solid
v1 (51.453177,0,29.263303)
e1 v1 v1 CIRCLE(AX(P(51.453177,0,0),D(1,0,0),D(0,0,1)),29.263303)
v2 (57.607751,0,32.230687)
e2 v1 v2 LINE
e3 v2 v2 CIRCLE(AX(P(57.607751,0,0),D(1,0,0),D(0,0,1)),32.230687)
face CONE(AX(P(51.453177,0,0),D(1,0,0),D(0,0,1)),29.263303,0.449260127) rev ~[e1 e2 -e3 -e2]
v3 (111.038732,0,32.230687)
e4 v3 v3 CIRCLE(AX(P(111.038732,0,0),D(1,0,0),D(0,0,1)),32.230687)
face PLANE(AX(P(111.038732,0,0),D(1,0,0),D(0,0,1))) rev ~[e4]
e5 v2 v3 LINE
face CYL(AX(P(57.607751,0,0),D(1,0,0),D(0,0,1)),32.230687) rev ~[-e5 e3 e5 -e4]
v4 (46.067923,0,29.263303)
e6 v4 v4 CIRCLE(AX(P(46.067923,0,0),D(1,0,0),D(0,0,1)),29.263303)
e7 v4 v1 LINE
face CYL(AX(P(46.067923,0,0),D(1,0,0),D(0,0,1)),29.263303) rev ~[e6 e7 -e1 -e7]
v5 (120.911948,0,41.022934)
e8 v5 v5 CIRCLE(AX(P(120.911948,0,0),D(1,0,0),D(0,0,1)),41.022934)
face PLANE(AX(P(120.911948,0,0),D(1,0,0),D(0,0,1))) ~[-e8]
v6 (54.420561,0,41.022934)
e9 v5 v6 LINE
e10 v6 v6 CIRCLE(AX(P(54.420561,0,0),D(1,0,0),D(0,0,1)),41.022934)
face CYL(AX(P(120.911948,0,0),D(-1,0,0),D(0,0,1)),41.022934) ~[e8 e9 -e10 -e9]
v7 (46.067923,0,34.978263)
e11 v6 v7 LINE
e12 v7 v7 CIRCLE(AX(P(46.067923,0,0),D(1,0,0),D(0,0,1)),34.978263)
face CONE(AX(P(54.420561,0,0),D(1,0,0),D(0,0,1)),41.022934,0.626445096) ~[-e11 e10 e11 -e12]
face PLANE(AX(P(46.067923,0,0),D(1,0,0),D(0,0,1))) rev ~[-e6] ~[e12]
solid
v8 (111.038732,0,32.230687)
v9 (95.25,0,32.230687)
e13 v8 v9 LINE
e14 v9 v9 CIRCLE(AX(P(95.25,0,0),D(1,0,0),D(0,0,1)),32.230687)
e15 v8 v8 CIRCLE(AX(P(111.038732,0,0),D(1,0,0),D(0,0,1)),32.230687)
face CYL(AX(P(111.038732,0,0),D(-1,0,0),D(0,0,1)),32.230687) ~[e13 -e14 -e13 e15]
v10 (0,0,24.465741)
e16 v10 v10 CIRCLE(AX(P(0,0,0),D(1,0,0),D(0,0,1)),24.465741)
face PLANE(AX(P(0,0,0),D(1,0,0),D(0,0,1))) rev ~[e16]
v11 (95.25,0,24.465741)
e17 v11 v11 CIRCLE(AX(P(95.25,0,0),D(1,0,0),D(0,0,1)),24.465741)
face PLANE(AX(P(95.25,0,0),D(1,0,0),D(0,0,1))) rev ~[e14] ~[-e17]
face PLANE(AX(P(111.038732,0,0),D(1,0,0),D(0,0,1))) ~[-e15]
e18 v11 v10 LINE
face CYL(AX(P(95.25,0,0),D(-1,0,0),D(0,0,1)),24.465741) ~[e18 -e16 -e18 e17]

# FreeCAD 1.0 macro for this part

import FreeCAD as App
import Part
import Sketcher

V = App.Vector
Q = App.Units.Quantity

doc = App.newDocument("Part")
body = doc.addObject("PartDesign::Body", "Body")

sketch1 = body.newObject("Sketcher::SketchObject", "Sketch")
sketch1.AttachmentSupport = (doc.getObject("XZ_Plane"), [""])
sketch1.MapMode = "FlatFace"
sketch1.addGeometry(Part.LineSegment(V(0, 24, 0), V(0, 0, 0)), False)
sketch1.addGeometry(Part.LineSegment(V(0, 0, 0), V(111, 0, 0)), False)
sketch1.addGeometry(Part.LineSegment(V(111, 0, 0), V(111, 32, 0)), False)
sketch1.addGeometry(Part.LineSegment(V(111, 32, 0), V(95, 32, 0)), False)
sketch1.addGeometry(Part.LineSegment(V(95, 32, 0), V(95, 24, 0)), False)
sketch1.addGeometry(Part.LineSegment(V(95, 24, 0), V(0, 24, 0)), False)
sketch1.addConstraint(Sketcher.Constraint("Coincident", 0, 2, 1, 1))
sketch1.addConstraint(Sketcher.Constraint("Coincident", 1, 2, 2, 1))
sketch1.addConstraint(Sketcher.Constraint("Coincident", 2, 2, 3, 1))
sketch1.addConstraint(Sketcher.Constraint("Coincident", 3, 2, 4, 1))
sketch1.addConstraint(Sketcher.Constraint("Coincident", 4, 2, 5, 1))
sketch1.addConstraint(Sketcher.Constraint("Coincident", 5, 2, 0, 1))
sketch1.addConstraint(Sketcher.Constraint("Vertical", 0))
sketch1.addConstraint(Sketcher.Constraint("Horizontal", 1))
sketch1.addConstraint(Sketcher.Constraint("Vertical", 2))
sketch1.addConstraint(Sketcher.Constraint("Horizontal", 3))
sketch1.addConstraint(Sketcher.Constraint("Vertical", 4))
sketch1.addConstraint(Sketcher.Constraint("Horizontal", 5))
sketch1.addConstraint(Sketcher.Constraint("Coincident", 0, 2, -1, 1))
sketch1.addConstraint(Sketcher.Constraint("DistanceX", 5, 2, 5, 1, Q("3.75 in")))
sketch1.addConstraint(Sketcher.Constraint("DistanceX", 1, 1, 1, 2, Q("111.038732 mm")))
sketch1.addConstraint(Sketcher.Constraint("DistanceY", 0, 2, 0, 1, Q("24.465741 mm")))
sketch1.addConstraint(Sketcher.Constraint("DistanceY", 2, 1, 2, 2, Q("32.230687 mm")))
revolution = body.newObject("PartDesign::Revolution", "Revolution")
revolution.Profile = sketch1
revolution.ReferenceAxis = (sketch1, ["H_Axis"])
revolution.Angle = 360
body2 = doc.addObject("PartDesign::Body", "Body001")

sketch2 = body2.newObject("Sketcher::SketchObject", "Sketch001")
sketch2.AttachmentSupport = (doc.getObject("XZ_Plane001"), [""])
sketch2.MapMode = "FlatFace"
sketch2.addGeometry(Part.LineSegment(V(111, 32, 0), V(111, 0, 0)), False)
sketch2.addGeometry(Part.LineSegment(V(111, 0, 0), V(121, 0, 0)), False)
sketch2.addGeometry(Part.LineSegment(V(121, 0, 0), V(121, 41, 0)), False)
sketch2.addGeometry(Part.LineSegment(V(121, 41, 0), V(54, 41, 0)), False)
sketch2.addGeometry(Part.LineSegment(V(54, 41, 0), V(46, 35, 0)), False)
sketch2.addGeometry(Part.LineSegment(V(46, 35, 0), V(46, 29, 0)), False)
sketch2.addGeometry(Part.LineSegment(V(46, 29, 0), V(51, 29, 0)), False)
sketch2.addGeometry(Part.LineSegment(V(51, 29, 0), V(58, 32, 0)), False)
sketch2.addGeometry(Part.LineSegment(V(58, 32, 0), V(111, 32, 0)), False)
sketch2.addConstraint(Sketcher.Constraint("Coincident", 0, 2, 1, 1))
sketch2.addConstraint(Sketcher.Constraint("Coincident", 1, 2, 2, 1))
sketch2.addConstraint(Sketcher.Constraint("Coincident", 2, 2, 3, 1))
sketch2.addConstraint(Sketcher.Constraint("Coincident", 3, 2, 4, 1))
sketch2.addConstraint(Sketcher.Constraint("Coincident", 4, 2, 5, 1))
sketch2.addConstraint(Sketcher.Constraint("Coincident", 5, 2, 6, 1))
sketch2.addConstraint(Sketcher.Constraint("Coincident", 6, 2, 7, 1))
sketch2.addConstraint(Sketcher.Constraint("Coincident", 7, 2, 8, 1))
sketch2.addConstraint(Sketcher.Constraint("Coincident", 8, 2, 0, 1))
sketch2.addConstraint(Sketcher.Constraint("Vertical", 0))
sketch2.addConstraint(Sketcher.Constraint("Horizontal", 1))
sketch2.addConstraint(Sketcher.Constraint("Vertical", 2))
sketch2.addConstraint(Sketcher.Constraint("Horizontal", 3))
sketch2.addConstraint(Sketcher.Constraint("Vertical", 5))
sketch2.addConstraint(Sketcher.Constraint("Horizontal", 6))
sketch2.addConstraint(Sketcher.Constraint("Horizontal", 8))
sketch2.addConstraint(Sketcher.Constraint("PointOnObject", 0, 2, -1))
sketch2.addConstraint(Sketcher.Constraint("DistanceX", 8, 1, 8, 2, Q("53.430981 mm")))
sketch2.addConstraint(Sketcher.Constraint("DistanceY", 5, 2, 5, 1, Q("5.71496 mm")))
sketch2.addConstraint(Sketcher.Constraint("Distance", 7, Q("6.83258 mm")))
sketch2.addConstraint(Sketcher.Constraint("DistanceX", 1, 1, 1, 2, Q("9.873216 mm")))
sketch2.addConstraint(Sketcher.Constraint("DistanceX", 3, 2, 3, 1, Q("66.491387 mm")))
sketch2.addConstraint(Sketcher.Constraint("DistanceX", 6, 1, 6, 2, Q("5.385254 mm")))
sketch2.addConstraint(Sketcher.Constraint("DistanceY", 0, 2, 0, 1, Q("32.230687 mm")))
sketch2.addConstraint(Sketcher.Constraint("DistanceY", 2, 1, 2, 2, Q("41.022934 mm")))
sketch2.addConstraint(Sketcher.Constraint("DistanceX", -1, 1, 0, 2, Q("111.038732 mm")))
sketch2.addConstraint(Sketcher.Constraint("DistanceY", 4, 2, 3, 2, Q("6.044671 mm")))
revolution2 = body2.newObject("PartDesign::Revolution", "Revolution001")
revolution2.Profile = sketch2
revolution2.ReferenceAxis = (sketch2, ["H_Axis"])
revolution2.Angle = 360

doc.recompute()
